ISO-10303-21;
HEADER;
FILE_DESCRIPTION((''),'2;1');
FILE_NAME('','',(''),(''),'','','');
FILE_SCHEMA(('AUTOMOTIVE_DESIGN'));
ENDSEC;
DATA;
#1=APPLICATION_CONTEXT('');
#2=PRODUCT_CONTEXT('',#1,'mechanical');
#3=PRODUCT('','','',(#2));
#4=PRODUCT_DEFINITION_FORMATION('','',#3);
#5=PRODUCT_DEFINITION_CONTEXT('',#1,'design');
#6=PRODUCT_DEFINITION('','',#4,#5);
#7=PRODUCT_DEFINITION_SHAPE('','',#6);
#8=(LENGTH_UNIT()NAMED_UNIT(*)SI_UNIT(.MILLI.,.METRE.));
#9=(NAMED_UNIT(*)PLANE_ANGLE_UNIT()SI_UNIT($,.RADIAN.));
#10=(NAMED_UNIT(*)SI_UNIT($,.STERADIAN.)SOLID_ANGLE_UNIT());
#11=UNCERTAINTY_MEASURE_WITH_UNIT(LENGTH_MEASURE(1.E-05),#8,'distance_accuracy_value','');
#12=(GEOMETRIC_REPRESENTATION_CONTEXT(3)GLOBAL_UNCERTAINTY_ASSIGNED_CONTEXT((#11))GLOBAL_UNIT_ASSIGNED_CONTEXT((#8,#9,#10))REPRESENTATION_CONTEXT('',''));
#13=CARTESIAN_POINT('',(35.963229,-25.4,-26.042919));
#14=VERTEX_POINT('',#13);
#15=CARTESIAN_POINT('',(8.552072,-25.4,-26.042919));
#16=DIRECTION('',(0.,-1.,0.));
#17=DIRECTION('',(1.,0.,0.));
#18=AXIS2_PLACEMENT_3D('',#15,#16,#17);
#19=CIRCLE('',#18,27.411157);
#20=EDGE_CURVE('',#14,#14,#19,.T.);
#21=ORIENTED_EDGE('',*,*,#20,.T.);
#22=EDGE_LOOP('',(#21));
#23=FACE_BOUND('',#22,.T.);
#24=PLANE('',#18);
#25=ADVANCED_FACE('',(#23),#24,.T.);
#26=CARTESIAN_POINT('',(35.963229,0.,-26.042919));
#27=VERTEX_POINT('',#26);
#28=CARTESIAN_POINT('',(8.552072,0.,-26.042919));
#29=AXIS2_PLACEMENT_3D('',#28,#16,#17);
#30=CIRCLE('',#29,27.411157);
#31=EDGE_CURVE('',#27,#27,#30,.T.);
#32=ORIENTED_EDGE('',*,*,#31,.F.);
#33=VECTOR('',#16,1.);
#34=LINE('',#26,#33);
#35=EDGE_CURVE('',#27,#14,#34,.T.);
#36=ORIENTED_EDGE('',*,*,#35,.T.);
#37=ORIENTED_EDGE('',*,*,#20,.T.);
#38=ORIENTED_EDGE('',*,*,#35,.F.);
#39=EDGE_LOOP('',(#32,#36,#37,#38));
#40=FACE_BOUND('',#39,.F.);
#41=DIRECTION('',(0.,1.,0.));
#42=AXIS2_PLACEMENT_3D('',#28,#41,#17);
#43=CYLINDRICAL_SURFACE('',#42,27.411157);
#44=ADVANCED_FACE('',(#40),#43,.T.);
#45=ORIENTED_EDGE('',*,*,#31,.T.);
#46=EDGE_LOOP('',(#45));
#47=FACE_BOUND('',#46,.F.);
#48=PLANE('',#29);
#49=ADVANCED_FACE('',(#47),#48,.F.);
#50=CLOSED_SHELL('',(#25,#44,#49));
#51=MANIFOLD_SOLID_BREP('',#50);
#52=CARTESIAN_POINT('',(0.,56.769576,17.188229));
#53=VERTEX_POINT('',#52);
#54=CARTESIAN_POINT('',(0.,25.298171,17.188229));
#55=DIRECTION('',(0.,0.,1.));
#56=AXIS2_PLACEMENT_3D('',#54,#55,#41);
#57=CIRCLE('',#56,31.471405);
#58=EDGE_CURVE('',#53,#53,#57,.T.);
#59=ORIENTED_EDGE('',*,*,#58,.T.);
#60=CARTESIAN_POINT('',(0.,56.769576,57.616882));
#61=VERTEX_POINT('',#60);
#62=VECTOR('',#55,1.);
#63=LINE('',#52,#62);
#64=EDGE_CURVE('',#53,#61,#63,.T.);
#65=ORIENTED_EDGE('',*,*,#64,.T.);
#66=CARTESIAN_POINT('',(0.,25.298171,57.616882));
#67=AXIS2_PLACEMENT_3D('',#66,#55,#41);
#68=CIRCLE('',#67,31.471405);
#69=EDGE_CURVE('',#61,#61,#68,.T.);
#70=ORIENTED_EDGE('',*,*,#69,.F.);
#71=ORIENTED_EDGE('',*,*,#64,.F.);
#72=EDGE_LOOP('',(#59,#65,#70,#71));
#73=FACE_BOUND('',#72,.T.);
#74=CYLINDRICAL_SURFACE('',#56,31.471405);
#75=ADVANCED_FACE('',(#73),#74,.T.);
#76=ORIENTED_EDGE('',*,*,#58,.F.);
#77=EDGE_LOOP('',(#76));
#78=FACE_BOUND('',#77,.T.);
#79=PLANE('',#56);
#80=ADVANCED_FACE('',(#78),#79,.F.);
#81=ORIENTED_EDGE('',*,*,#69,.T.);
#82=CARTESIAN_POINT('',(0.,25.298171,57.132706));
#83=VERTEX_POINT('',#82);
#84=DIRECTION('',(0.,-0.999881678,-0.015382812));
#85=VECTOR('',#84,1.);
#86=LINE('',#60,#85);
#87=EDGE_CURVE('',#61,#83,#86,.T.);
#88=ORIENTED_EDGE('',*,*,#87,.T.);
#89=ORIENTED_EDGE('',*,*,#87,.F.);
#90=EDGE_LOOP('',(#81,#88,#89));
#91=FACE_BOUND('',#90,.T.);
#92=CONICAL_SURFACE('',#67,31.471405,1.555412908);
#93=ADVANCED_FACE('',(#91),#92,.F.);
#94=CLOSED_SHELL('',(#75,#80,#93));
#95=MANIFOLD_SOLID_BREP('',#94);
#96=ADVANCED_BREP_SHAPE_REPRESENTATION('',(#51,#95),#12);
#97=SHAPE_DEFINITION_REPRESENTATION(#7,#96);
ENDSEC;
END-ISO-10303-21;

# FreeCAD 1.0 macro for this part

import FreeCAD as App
import Part
import Sketcher
Q = App.Units.Quantity

doc = App.newDocument("Part")
body = doc.addObject("PartDesign::Body", "Body")

# Sketch on XZ plane
sketch1 = body.newObject("Sketcher::SketchObject", "Sketch")
sketch1.AttachmentSupport = (doc.getObject("XZ_Plane"), [""])
sketch1.MapMode = "FlatFace"
sketch1.addGeometry(Part.Circle(App.Vector(9, -26, 0), App.Vector(0, 0, 1), 27), False)
sketch1.addConstraint([
    Sketcher.Constraint("Diameter", 0, 54.822314),
    Sketcher.Constraint("DistanceY", 0, 3, -1, 1, 26.042919),
    Sketcher.Constraint("DistanceX", -1, 1, 0, 3, 8.552072),
])
pad1 = body.newObject("PartDesign::Pad", "Pad")
pad1.Profile = sketch1
pad1.Length = Q("1 in")
body2 = doc.addObject("PartDesign::Body", "Body001")

# Sketch on YZ plane
sketch2 = body2.newObject("Sketcher::SketchObject", "Sketch001")
sketch2.AttachmentSupport = (doc.getObject("YZ_Plane001"), [""])
sketch2.MapMode = "FlatFace"
sketch2.addGeometry([
    Part.LineSegment(App.Vector(57, 17, 0), App.Vector(57, 58, 0)),
    Part.LineSegment(App.Vector(57, 58, 0), App.Vector(25, 57, 0)),
    Part.LineSegment(App.Vector(25, 57, 0), App.Vector(25, 17, 0)),
    Part.LineSegment(App.Vector(25, 17, 0), App.Vector(57, 17, 0)),
], False)
sketch2.addGeometry(Part.LineSegment(App.Vector(25, 17, 0), App.Vector(25, 58, 0)), True)  # axis
sketch2.addConstraint([
    Sketcher.Constraint("Coincident", 0, 2, 1, 1),
    Sketcher.Constraint("Coincident", 1, 2, 2, 1),
    Sketcher.Constraint("Coincident", 2, 2, 3, 1),
    Sketcher.Constraint("Coincident", 3, 2, 0, 1),
    Sketcher.Constraint("Vertical", 0),
    Sketcher.Constraint("Vertical", 2),
    Sketcher.Constraint("Horizontal", 3),
    Sketcher.Constraint("Vertical", 4),
    Sketcher.Constraint("Coincident", 4, 1, 2, 2),
    Sketcher.Constraint("Horizontal", 0, 2, 4, 2),
    Sketcher.Constraint("Distance", 1, 31.475129),
    Sketcher.Constraint("DistanceX", 3, 1, 3, 2, 31.471405),
    Sketcher.Constraint("DistanceY", 0, 1, 0, 2, 40.428653),
    Sketcher.Constraint("DistanceY", -1, 1, 0, 2, 57.616882),
    Sketcher.Constraint("DistanceX", -1, 1, 1, 2, 25.298171),
])
revolution = body2.newObject("PartDesign::Revolution", "Revolution")
revolution.Profile = sketch2
revolution.ReferenceAxis = (sketch2, ["Axis0"])
revolution.Angle = 360

doc.recompute()
